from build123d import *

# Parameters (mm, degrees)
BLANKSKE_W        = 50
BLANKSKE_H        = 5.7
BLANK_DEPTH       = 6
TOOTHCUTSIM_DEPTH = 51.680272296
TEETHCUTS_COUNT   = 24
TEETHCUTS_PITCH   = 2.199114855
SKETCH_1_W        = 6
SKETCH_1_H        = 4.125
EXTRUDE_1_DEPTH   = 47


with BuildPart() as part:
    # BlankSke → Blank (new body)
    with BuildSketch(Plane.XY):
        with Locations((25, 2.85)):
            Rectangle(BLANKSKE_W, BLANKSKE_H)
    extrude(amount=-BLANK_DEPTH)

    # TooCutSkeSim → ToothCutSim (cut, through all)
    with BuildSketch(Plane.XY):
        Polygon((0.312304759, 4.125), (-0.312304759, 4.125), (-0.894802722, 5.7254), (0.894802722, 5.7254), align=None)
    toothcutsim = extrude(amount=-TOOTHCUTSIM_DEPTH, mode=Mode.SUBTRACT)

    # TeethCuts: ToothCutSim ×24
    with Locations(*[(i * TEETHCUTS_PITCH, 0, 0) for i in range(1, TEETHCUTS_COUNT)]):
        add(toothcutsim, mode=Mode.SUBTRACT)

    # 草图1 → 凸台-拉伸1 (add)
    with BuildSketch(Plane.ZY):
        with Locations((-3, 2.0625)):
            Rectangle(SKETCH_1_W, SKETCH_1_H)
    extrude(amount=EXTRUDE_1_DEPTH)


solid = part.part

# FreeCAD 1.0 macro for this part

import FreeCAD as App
import Part
import Sketcher

V = App.Vector
Q = App.Units.Quantity


def add_polygon(sketch, points):
    """Adds a closed chain of lines whose ends are joined by coincident constraints."""
    first, n = sketch.GeometryCount, len(points)
    for a, b in zip(points, points[1:] + points[:1]):
        sketch.addGeometry(Part.LineSegment(App.Vector(*a, 0), App.Vector(*b, 0)), False)
    for i in range(n):
        sketch.addConstraint(Sketcher.Constraint("Coincident", first + i, 2, first + (i + 1) % n, 1))

doc = App.newDocument("Part")
body = doc.addObject("PartDesign::Body", "Body")

sketch1 = body.newObject("Sketcher::SketchObject", "Sketch")
sketch1.AttachmentSupport = (doc.getObject("XY_Plane"), [""])
sketch1.MapMode = "FlatFace"
add_polygon(sketch1, [(0, 6), (0, 0), (50, 0), (50, 6)])
sketch1.addConstraint([
    Sketcher.Constraint("Vertical", 0),
    Sketcher.Constraint("Horizontal", 1),
    Sketcher.Constraint("Vertical", 2),
    Sketcher.Constraint("Horizontal", 3),
    Sketcher.Constraint("Coincident", 0, 2, -1, 1),
    Sketcher.Constraint("DistanceX", 1, 1, 1, 2, Q("50 mm")),
    Sketcher.Constraint("DistanceY", 0, 2, 0, 1, Q("5.7 mm")),
])
pad1 = body.newObject("PartDesign::Pad", "Pad")
pad1.Profile = sketch1
pad1.Length = 6
pad1.Reversed = True

sketch2 = body.newObject("Sketcher::SketchObject", "Sketch001")
sketch2.AttachmentSupport = (doc.getObject("XY_Plane"), [""])
sketch2.MapMode = "FlatFace"
add_polygon(sketch2, [(-0.3, 4.1), (0.3, 4.1), (0.9, 5.7), (-0.9, 5.7)])
sketch2.addConstraint([
    Sketcher.Constraint("Horizontal", 0),
    Sketcher.Constraint("Horizontal", 2),
    Sketcher.Constraint("Equal", 1, 3),
    Sketcher.Constraint("Angle", 1, Q("70 deg")),
    Sketcher.Constraint("DistanceY", -1, 1, 0, 2, Q("4.125 mm")),
    Sketcher.Constraint("DistanceX", 0, 1, 0, 2, Q("0.62461 mm")),
    Sketcher.Constraint("DistanceY", -1, 1, 1, 2, Q("5.7254 mm")),
    Sketcher.Constraint("DistanceX", -1, 1, 0, 2, Q("0.312305 mm")),
])
pocket1 = body.newObject("PartDesign::Pocket", "Pocket")
pocket1.Profile = sketch2
pocket1.Type = "ThroughAll"
doc.recompute()

linearpattern = body.newObject("PartDesign::LinearPattern", "LinearPattern")
linearpattern.Originals = [pocket1]
linearpattern.Direction = (doc.getObject("X_Axis"), [""])
linearpattern.Mode = "offset"
linearpattern.Offset = 2.199115
linearpattern.Occurrences = 24
body.Tip = linearpattern

sketch3 = body.newObject("Sketcher::SketchObject", "Sketch002")
sketch3.AttachmentSupport = (doc.getObject("YZ_Plane"), [""])
sketch3.MapMode = "FlatFace"
add_polygon(sketch3, [(4.1, -6), (0, -6), (0, 0), (4.1, 0)])
sketch3.addConstraint([
    Sketcher.Constraint("Horizontal", 0),
    Sketcher.Constraint("Vertical", 1),
    Sketcher.Constraint("Horizontal", 2),
    Sketcher.Constraint("Vertical", 3),
    Sketcher.Constraint("Coincident", 1, 2, -1, 1),
    Sketcher.Constraint("DistanceY", 1, 1, 1, 2, Q("6 mm")),
    Sketcher.Constraint("DistanceX", 0, 2, 0, 1, Q("4.125 mm")),
])
pad2 = body.newObject("PartDesign::Pad", "Pad001")
pad2.Profile = sketch3
pad2.Length = 47
pad2.Reversed = True

doc.recompute()
